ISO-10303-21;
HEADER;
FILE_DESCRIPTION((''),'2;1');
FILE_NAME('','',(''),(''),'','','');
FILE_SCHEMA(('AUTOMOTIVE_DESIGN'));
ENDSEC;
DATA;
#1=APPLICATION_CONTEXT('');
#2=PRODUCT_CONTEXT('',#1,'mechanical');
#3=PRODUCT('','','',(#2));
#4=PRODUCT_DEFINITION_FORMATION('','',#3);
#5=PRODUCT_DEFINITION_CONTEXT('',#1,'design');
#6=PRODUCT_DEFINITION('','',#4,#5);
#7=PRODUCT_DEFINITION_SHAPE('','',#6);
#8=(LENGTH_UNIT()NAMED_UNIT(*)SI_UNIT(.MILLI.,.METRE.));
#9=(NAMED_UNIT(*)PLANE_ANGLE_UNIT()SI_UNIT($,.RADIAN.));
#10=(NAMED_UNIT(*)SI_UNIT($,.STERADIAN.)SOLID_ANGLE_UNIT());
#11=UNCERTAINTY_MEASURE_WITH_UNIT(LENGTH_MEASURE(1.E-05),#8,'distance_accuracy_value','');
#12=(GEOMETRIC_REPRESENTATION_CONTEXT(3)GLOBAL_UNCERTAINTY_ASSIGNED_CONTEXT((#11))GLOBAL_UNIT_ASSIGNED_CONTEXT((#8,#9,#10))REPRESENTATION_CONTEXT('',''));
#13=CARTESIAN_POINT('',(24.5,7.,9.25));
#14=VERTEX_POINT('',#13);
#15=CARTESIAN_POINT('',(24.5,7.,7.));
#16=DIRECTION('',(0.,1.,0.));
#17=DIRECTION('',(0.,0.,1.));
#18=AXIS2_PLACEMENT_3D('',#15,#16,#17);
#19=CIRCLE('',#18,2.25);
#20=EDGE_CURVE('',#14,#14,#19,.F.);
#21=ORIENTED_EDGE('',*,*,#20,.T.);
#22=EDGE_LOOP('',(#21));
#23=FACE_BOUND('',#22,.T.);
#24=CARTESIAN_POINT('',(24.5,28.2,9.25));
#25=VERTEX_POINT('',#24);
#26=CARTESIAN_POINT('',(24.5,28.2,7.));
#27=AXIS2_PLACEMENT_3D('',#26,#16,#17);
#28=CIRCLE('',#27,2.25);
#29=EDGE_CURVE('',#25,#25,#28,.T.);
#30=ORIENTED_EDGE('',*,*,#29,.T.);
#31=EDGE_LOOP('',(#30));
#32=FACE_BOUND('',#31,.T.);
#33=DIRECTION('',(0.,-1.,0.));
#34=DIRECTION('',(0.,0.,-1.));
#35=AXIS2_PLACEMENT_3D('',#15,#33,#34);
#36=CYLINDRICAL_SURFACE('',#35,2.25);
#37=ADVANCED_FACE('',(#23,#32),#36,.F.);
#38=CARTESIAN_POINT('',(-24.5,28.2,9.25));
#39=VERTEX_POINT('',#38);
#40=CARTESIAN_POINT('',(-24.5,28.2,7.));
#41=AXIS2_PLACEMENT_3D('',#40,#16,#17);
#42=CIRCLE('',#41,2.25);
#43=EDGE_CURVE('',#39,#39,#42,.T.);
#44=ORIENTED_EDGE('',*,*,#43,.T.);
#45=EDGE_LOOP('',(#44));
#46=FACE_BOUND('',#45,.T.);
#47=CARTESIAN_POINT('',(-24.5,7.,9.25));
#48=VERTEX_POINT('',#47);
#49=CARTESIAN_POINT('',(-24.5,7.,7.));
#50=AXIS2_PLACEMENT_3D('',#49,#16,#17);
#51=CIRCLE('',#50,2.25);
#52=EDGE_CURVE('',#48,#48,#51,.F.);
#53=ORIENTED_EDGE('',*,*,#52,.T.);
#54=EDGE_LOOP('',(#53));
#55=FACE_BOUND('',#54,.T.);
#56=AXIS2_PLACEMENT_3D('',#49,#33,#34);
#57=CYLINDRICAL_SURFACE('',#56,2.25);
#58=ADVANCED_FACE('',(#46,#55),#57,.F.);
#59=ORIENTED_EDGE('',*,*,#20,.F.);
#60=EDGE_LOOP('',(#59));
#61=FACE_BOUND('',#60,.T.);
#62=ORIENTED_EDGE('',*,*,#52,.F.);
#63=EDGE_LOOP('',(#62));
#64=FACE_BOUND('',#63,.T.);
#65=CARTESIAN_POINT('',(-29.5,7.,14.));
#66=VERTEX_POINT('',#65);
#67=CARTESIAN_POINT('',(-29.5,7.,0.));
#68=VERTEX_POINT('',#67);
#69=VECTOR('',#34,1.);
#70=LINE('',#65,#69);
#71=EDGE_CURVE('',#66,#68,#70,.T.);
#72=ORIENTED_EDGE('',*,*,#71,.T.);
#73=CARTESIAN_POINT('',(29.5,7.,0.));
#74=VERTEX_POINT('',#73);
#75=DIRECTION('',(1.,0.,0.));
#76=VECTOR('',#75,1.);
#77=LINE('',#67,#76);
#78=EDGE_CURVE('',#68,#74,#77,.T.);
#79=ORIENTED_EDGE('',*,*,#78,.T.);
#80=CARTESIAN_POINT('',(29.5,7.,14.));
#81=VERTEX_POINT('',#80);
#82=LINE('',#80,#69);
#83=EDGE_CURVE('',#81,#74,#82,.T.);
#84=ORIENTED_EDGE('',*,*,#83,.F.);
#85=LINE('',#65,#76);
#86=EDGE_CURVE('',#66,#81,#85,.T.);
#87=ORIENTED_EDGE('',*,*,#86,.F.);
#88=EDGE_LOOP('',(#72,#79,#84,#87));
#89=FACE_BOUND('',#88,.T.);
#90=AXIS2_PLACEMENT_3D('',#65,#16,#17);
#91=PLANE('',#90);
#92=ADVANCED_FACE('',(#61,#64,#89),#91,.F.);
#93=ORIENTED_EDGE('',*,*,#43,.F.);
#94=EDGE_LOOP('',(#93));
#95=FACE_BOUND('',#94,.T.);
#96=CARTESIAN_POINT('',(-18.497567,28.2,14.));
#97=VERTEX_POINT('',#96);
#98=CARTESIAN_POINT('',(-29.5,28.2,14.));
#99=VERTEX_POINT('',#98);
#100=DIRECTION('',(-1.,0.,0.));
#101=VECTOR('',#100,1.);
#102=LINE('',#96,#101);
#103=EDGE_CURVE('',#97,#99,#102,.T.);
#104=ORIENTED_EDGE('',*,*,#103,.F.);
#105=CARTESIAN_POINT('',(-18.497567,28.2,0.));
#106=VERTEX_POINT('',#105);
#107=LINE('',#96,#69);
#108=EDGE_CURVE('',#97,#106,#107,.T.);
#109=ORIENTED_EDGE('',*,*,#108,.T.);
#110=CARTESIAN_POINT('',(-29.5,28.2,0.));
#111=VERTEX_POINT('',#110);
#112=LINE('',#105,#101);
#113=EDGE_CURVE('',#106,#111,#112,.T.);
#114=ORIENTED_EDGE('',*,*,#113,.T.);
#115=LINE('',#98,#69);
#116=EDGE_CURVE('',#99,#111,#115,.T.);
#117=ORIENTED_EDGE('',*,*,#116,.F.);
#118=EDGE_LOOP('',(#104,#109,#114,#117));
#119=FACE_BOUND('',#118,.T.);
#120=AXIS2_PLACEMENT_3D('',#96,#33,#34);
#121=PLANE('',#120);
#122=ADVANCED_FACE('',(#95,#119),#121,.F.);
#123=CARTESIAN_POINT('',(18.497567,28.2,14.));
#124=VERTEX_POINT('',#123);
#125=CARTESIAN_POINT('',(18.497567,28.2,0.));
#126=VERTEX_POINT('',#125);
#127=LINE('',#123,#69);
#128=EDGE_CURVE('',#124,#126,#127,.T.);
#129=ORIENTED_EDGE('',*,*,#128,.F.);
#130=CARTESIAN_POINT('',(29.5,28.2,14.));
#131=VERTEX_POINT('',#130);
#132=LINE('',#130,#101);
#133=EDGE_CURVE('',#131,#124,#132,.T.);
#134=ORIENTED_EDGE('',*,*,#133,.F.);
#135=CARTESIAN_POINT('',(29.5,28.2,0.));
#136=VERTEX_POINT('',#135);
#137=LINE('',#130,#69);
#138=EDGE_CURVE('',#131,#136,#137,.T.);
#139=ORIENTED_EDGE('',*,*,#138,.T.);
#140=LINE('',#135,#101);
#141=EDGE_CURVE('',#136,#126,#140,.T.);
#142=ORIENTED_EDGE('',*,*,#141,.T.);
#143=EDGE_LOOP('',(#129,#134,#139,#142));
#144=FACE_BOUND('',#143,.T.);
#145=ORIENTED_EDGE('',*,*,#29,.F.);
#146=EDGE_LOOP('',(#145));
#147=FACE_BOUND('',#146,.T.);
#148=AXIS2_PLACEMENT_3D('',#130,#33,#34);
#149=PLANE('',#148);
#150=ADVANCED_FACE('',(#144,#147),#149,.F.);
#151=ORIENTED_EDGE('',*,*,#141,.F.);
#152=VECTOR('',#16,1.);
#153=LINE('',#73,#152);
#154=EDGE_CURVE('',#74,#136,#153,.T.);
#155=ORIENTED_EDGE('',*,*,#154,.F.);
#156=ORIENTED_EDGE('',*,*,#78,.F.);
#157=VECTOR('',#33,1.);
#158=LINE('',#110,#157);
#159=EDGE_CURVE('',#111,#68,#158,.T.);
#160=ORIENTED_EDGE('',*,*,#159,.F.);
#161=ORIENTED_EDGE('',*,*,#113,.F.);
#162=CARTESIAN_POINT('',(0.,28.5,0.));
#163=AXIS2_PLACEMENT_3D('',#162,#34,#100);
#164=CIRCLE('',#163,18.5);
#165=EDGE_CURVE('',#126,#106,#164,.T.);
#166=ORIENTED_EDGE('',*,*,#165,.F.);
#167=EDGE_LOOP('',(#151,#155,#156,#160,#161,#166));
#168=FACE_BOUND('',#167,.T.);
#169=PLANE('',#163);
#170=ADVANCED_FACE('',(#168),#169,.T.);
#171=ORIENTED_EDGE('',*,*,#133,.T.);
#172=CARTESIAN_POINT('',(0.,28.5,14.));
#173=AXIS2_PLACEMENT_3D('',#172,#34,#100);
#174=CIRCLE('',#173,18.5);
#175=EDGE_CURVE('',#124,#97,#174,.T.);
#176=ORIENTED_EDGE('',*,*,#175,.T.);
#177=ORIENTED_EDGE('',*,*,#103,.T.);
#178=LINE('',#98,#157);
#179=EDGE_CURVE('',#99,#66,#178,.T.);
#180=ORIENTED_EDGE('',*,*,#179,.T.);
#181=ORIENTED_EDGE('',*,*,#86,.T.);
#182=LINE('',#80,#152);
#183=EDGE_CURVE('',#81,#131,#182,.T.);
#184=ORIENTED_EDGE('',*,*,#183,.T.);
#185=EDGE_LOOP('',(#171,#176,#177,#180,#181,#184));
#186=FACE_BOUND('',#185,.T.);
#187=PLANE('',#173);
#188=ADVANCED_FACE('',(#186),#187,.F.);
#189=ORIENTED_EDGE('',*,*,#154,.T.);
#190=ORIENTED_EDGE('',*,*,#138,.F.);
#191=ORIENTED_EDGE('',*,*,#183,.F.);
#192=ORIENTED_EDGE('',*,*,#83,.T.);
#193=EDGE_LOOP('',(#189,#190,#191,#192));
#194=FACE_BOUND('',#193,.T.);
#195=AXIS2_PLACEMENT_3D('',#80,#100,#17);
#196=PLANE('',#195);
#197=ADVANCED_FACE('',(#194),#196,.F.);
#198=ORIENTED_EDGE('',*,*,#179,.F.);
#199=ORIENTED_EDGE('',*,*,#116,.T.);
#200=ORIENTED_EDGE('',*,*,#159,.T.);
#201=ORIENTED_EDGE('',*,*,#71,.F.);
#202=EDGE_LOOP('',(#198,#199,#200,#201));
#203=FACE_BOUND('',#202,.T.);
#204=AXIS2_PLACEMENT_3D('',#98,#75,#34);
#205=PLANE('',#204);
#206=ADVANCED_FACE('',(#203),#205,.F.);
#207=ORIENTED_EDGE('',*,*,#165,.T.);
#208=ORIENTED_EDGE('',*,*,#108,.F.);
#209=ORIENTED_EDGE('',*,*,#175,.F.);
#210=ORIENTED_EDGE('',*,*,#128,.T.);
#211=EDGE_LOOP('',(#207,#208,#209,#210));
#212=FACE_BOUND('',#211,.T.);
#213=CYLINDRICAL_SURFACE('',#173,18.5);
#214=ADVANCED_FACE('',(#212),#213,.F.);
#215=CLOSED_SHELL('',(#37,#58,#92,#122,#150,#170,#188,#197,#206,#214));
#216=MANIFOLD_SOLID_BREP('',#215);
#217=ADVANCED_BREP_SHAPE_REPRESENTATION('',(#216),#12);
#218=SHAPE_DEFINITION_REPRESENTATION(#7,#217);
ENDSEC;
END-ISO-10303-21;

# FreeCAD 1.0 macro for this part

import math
import FreeCAD as App
import Part
import Sketcher
from FreeCAD import Vector

doc = App.newDocument("Part")
params = doc.addObject("Spreadsheet::Sheet", "Params")
for row, (alias, value) in enumerate([
    ("sketch1_radius", "18.5 mm"),
    ("sketch1_width", "59 mm"),
    ("sketch1_height", "21.2 mm"),
    ("pad1_length", "14 mm"),
    ("sketch2_diameter", "4.5 mm"),
], start=1):
    params.set(f"A{row}", alias)
    params.set(f"B{row}", "=" + value)
    params.setAlias(f"B{row}", alias)

body = doc.addObject("PartDesign::Body", "Body")

# Sketch on XY plane
sketch1 = body.newObject("Sketcher::SketchObject", "Sketch")
sketch1.AttachmentSupport = (doc.getObject("XY_Plane"), [""])
sketch1.MapMode = "FlatFace"
sketch1.addGeometry([
    Part.LineSegment(Vector(-30, 7, 0), Vector(30, 7, 0)),  # 0
    Part.LineSegment(Vector(30, 7, 0), Vector(30, 28, 0)),  # 1
    Part.LineSegment(Vector(30, 28, 0), Vector(18, 28, 0)),  # 2
    Part.ArcOfCircle(Part.Circle(Vector(0, 28, 0), Vector(0, 0, 1), 18), math.radians(-179), math.radians(-1)),  # 3
    Part.LineSegment(Vector(-18, 28, 0), Vector(-30, 28, 0)),  # 4
    Part.LineSegment(Vector(-30, 28, 0), Vector(-30, 7, 0)),  # 5
], False)
sketch1.addConstraint([
    Sketcher.Constraint("Coincident", 0, 2, 1, 1),
    Sketcher.Constraint("Coincident", 1, 2, 2, 1),
    Sketcher.Constraint("Coincident", 2, 2, 3, 2),
    Sketcher.Constraint("Coincident", 3, 1, 4, 1),
    Sketcher.Constraint("Coincident", 4, 2, 5, 1),
    Sketcher.Constraint("Coincident", 5, 2, 0, 1),
    Sketcher.Constraint("Horizontal", 0),
    Sketcher.Constraint("Vertical", 1),
    Sketcher.Constraint("Horizontal", 2),
    Sketcher.Constraint("Horizontal", 4),
    Sketcher.Constraint("Vertical", 5),
    Sketcher.Constraint("Symmetric", 2, 2, 3, 1, -2),
    Sketcher.Constraint("Equal", 2, 4),
    Sketcher.Constraint("Radius", 3, 18.5),
    Sketcher.Constraint("DistanceX", 0, 1, 0, 2, 59.0),
    Sketcher.Constraint("DistanceY", 1, 1, 1, 2, 21.2),
    Sketcher.Constraint("DistanceY", -1, 1, 0, 2, 7.0),
    Sketcher.Constraint("DistanceY", -1, 1, 3, 3, 28.5),
])
sketch1.setExpression("Constraints[13]", "Params.sketch1_radius")
sketch1.setExpression("Constraints[14]", "Params.sketch1_width")
sketch1.setExpression("Constraints[15]", "Params.sketch1_height")
pad1 = body.newObject("PartDesign::Pad", "Pad")
pad1.Profile = sketch1
pad1.setExpression("Length", "Params.pad1_length")

# Sketch on XZ plane
sketch2 = body.newObject("Sketcher::SketchObject", "Sketch001")
sketch2.AttachmentSupport = (doc.getObject("XZ_Plane"), [""])
sketch2.MapMode = "FlatFace"
sketch2.addGeometry([
    Part.Circle(Vector(-24.5, 7, 0), Vector(0, 0, 1), 2.2),
    Part.Circle(Vector(24.5, 7, 0), Vector(0, 0, 1), 2.2),
], False)
sketch2.addConstraint([
    Sketcher.Constraint("Equal", 0, 1),
    Sketcher.Constraint("Symmetric", 0, 3, 1, 3, -2),
    Sketcher.Constraint("Diameter", 0, 4.5),
    Sketcher.Constraint("DistanceY", -1, 1, 0, 3, 7.0),
    Sketcher.Constraint("DistanceX", 0, 3, 1, 3, 49.0),
])
sketch2.setExpression("Constraints[2]", "Params.sketch2_diameter")
pocket1 = body.newObject("PartDesign::Pocket", "Pocket")
pocket1.Profile = sketch2
pocket1.Type = "ThroughAll"
pocket1.Midplane = True

doc.recompute()
